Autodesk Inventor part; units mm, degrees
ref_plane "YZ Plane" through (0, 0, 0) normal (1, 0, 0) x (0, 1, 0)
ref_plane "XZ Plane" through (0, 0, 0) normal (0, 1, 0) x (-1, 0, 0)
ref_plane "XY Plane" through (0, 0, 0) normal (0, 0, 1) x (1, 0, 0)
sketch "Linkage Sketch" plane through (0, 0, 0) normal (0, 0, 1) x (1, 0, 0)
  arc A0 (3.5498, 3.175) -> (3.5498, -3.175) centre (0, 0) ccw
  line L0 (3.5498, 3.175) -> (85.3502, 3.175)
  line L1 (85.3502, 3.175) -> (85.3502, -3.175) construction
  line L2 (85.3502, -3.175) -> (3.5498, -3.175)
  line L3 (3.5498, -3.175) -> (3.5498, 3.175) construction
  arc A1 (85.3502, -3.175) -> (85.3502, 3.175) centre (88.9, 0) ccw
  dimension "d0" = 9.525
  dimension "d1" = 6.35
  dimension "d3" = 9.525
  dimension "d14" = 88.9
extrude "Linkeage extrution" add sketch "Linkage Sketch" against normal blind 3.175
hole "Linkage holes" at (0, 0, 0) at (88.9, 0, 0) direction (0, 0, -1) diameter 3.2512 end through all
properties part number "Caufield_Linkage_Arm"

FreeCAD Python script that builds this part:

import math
import FreeCAD as App
import Part
import Sketcher
Q = App.Units.Quantity

doc = App.newDocument("Part")
body = doc.addObject("PartDesign::Body", "Body")

sketch1 = body.newObject("Sketcher::SketchObject", "Sketch")
sketch1.AttachmentSupport = (doc.getObject("XY_Plane"), [""])
sketch1.MapMode = "FlatFace"
sketch1.addGeometry(Part.LineSegment(App.Vector(85.4, 3.2, 0), App.Vector(3.5, 3.2, 0)), False)
sketch1.addGeometry(Part.ArcOfCircle(Part.Circle(App.Vector(0, 0, 0), App.Vector(0, 0, 1), 4.8), math.radians(42), math.radians(318)), False)
sketch1.addGeometry(Part.LineSegment(App.Vector(3.5, -3.2, 0), App.Vector(85.4, -3.2, 0)), False)
sketch1.addGeometry(Part.ArcOfCircle(Part.Circle(App.Vector(88.9, 0, 0), App.Vector(0, 0, 1), 4.8), math.radians(-138), math.radians(138)), False)
sketch1.addConstraint(Sketcher.Constraint("Coincident", 0, 2, 1, 1))
sketch1.addConstraint(Sketcher.Constraint("Coincident", 1, 2, 2, 1))
sketch1.addConstraint(Sketcher.Constraint("Coincident", 2, 2, 3, 1))
sketch1.addConstraint(Sketcher.Constraint("Coincident", 3, 2, 0, 1))
sketch1.addConstraint(Sketcher.Constraint("Horizontal", 0))
sketch1.addConstraint(Sketcher.Constraint("Horizontal", 2))
sketch1.addConstraint(Sketcher.Constraint("Coincident", 1, 3, -1, 1))
sketch1.addConstraint(Sketcher.Constraint("Equal", 1, 3))
sketch1.addConstraint(Sketcher.Constraint("Symmetric", 2, 2, 3, 2, -1))
sketch1.addConstraint(Sketcher.Constraint("Radius", 1, Q("0.1875 in")))
sketch1.addConstraint(Sketcher.Constraint("DistanceX", -1, 1, 3, 3, Q("3.5 in")))
sketch1.addConstraint(Sketcher.Constraint("DistanceY", 1, 2, 0, 2, Q("0.25 in")))
pad1 = body.newObject("PartDesign::Pad", "Pad")
pad1.Profile = sketch1
pad1.Length = Q("0.125 in")
pad1.Reversed = True

sketch2 = body.newObject("Sketcher::SketchObject", "Sketch001")
sketch2.AttachmentSupport = (doc.getObject("XY_Plane"), [""])
sketch2.MapMode = "FlatFace"
sketch2.addGeometry(Part.Circle(App.Vector(0, 0, 0), App.Vector(0, 0, 1), 1.6), False)
sketch2.addGeometry(Part.Circle(App.Vector(88.9, 0, 0), App.Vector(0, 0, 1), 1.6), False)
sketch2.addConstraint(Sketcher.Constraint("Coincident", 0, 3, -1, 1))
sketch2.addConstraint(Sketcher.Constraint("Equal", 0, 1))
sketch2.addConstraint(Sketcher.Constraint("PointOnObject", 1, 3, -1))
sketch2.addConstraint(Sketcher.Constraint("Diameter", 0, Q("0.128 in")))
sketch2.addConstraint(Sketcher.Constraint("DistanceX", -1, 1, 1, 3, Q("3.5 in")))
doc.recompute()
hole = body.newObject("PartDesign::Hole", "Hole")
hole.Profile = sketch2
hole.ThreadType = "None"
hole.Diameter = Q("0.128 in")
hole.DepthType = "ThroughAll"

doc.recompute()
